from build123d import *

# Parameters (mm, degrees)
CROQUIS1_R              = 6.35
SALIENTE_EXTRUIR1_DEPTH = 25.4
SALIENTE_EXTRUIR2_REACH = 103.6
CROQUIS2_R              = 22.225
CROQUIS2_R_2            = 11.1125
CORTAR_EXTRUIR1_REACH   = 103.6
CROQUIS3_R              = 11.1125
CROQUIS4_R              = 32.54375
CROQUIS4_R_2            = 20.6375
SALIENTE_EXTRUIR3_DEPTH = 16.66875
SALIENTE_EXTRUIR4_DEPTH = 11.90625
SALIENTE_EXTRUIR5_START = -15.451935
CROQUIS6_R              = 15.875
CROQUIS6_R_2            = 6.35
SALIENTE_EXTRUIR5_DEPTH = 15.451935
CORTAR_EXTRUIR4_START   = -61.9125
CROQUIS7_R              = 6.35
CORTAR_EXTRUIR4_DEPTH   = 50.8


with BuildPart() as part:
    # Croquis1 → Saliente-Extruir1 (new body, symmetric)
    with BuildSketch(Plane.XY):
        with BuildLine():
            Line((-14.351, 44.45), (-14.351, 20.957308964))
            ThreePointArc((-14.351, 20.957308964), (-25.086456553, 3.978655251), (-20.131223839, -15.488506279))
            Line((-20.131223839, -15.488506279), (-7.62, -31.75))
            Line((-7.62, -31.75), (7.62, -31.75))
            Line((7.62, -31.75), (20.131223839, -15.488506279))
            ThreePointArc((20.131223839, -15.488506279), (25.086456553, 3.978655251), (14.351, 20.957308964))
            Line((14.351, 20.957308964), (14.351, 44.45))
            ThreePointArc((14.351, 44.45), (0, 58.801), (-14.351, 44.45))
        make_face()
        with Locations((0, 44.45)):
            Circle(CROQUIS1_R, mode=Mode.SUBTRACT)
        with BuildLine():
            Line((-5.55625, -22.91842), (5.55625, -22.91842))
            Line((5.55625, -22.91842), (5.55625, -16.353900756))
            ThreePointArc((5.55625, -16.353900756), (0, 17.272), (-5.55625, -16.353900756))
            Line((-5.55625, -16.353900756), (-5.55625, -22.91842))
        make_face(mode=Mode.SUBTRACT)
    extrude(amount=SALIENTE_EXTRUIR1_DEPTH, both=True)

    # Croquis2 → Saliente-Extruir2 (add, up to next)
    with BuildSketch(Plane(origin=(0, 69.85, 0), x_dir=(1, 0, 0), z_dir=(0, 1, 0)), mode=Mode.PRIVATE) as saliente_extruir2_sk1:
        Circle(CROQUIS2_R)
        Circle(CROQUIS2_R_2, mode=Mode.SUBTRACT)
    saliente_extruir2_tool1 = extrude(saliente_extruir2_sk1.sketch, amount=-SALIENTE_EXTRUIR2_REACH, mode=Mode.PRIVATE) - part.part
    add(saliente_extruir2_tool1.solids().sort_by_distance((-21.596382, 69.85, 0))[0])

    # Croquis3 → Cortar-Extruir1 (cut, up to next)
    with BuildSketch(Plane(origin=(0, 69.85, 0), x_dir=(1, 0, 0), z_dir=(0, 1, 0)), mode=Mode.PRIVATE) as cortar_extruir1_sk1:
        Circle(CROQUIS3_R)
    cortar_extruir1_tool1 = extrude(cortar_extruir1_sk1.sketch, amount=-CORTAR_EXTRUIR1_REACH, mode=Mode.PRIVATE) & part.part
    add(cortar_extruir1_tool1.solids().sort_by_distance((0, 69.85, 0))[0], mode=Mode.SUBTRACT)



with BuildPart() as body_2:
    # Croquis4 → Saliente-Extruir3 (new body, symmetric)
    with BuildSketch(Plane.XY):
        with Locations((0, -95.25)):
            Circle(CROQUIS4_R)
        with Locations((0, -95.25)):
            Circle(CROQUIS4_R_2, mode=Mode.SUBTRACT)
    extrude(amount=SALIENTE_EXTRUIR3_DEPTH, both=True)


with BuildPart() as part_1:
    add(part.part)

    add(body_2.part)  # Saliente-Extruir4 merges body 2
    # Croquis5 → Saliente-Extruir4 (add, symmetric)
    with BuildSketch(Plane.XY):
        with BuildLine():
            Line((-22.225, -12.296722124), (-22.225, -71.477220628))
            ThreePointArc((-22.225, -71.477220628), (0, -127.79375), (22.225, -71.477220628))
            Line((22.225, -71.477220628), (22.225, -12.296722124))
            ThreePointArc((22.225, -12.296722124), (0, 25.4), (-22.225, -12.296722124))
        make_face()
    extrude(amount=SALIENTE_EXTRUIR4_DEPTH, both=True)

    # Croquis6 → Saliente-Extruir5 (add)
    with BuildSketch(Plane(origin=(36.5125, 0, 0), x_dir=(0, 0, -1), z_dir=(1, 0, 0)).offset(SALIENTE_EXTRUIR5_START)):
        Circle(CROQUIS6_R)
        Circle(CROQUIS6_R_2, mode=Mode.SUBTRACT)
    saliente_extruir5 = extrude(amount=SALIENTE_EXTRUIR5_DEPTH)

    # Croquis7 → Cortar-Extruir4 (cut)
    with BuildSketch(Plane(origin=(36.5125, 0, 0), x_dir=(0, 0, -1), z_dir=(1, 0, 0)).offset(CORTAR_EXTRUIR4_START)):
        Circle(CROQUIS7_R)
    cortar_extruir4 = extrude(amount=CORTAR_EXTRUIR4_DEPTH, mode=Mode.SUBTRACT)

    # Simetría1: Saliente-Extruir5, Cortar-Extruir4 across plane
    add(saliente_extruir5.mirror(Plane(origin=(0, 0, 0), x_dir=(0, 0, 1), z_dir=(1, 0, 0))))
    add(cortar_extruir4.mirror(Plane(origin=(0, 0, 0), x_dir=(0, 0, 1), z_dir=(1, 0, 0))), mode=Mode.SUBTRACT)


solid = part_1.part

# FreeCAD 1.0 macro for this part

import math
import FreeCAD as App
import Part
import Sketcher

V = App.Vector
Q = App.Units.Quantity

doc = App.newDocument("Part")
body = doc.addObject("PartDesign::Body", "Body")

# Sketch on XY plane
sketch1 = body.newObject("Sketcher::SketchObject", "Sketch")
sketch1.AttachmentSupport = (doc.getObject("XY_Plane"), [""])
sketch1.MapMode = "FlatFace"
sketch1.addGeometry([
    Part.LineSegment(V(-14, 44, 0), V(-14, 21, 0)),  # 0
    Part.ArcOfCircle(Part.Circle(V(0, 0, 0), V(0, 0, 1), 25), math.radians(124), math.radians(218)),  # 1
    Part.LineSegment(V(-20, -15, 0), V(-8, -32, 0)),  # 2
    Part.LineSegment(V(-8, -32, 0), V(8, -32, 0)),  # 3
    Part.LineSegment(V(8, -32, 0), V(20, -15, 0)),  # 4
    Part.ArcOfCircle(Part.Circle(V(0, 0, 0), V(0, 0, 1), 25), math.radians(-38), math.radians(56)),  # 5
    Part.LineSegment(V(14, 21, 0), V(14, 44, 0)),  # 6
    Part.ArcOfCircle(Part.Circle(V(0, 44, 0), V(0, 0, 1), 14), math.radians(0), math.radians(180)),  # 7
    Part.LineSegment(V(6, -23, 0), V(-6, -23, 0)),  # 8
    Part.LineSegment(V(-6, -23, 0), V(-6, -16, 0)),  # 9
    Part.ArcOfCircle(Part.Circle(V(0, 0, 0), V(0, 0, 1), 17), math.radians(-71), math.radians(251)),  # 10
    Part.LineSegment(V(6, -16, 0), V(6, -23, 0)),  # 11
    Part.Circle(V(0, 44, 0), V(0, 0, 1), 6),  # 12
], False)
sketch1.addConstraint([
    Sketcher.Constraint("Coincident", 0, 2, 1, 1),
    Sketcher.Constraint("Tangent", 1, 2, 2, 1),
    Sketcher.Constraint("Coincident", 2, 2, 3, 1),
    Sketcher.Constraint("Coincident", 3, 2, 4, 1),
    Sketcher.Constraint("Tangent", 4, 2, 5, 1),
    Sketcher.Constraint("Coincident", 5, 2, 6, 1),
    Sketcher.Constraint("Tangent", 6, 2, 7, 1),
    Sketcher.Constraint("Tangent", 7, 2, 0, 1),
    Sketcher.Constraint("Coincident", 8, 2, 9, 1),
    Sketcher.Constraint("Coincident", 9, 2, 10, 2),
    Sketcher.Constraint("Coincident", 10, 1, 11, 1),
    Sketcher.Constraint("Coincident", 11, 2, 8, 1),
    Sketcher.Constraint("Vertical", 0),
    Sketcher.Constraint("Horizontal", 3),
    Sketcher.Constraint("Vertical", 6),
    Sketcher.Constraint("Horizontal", 8),
    Sketcher.Constraint("Vertical", 9),
    Sketcher.Constraint("Vertical", 11),
    Sketcher.Constraint("Coincident", 1, 3, -1, 1),
    Sketcher.Constraint("Coincident", 5, 3, -1, 1),
    Sketcher.Constraint("Coincident", 10, 3, -1, 1),
    Sketcher.Constraint("Coincident", 12, 3, 7, 3),
    Sketcher.Constraint("Equal", 1, 5),
    Sketcher.Constraint("PointOnObject", 7, 3, -2),
    Sketcher.Constraint("Horizontal", 1, 2, 4, 2),
    Sketcher.Constraint("Horizontal", 9, 2, 10, 1),
    Sketcher.Constraint("Radius", 1, Q("1 in")),
    Sketcher.Constraint("Diameter", 12, Q("0.5 in")),
    Sketcher.Constraint("Radius", 10, Q("0.68 in")),
    Sketcher.Constraint("DistanceX", 3, 1, 3, 2, Q("0.6 in")),
    Sketcher.Constraint("Radius", 7, Q("0.565 in")),
    Sketcher.Constraint("DistanceX", 8, 2, 8, 1, Q("0.4375 in")),
    Sketcher.Constraint("DistanceY", -1, 1, 7, 3, Q("1.75 in")),
    Sketcher.Constraint("DistanceY", 2, 2, -1, 1, Q("1.25 in")),
    Sketcher.Constraint("DistanceY", 8, 2, -1, 1, Q("0.9023 in")),
])
pad1 = body.newObject("PartDesign::Pad", "Pad")
pad1.Profile = sketch1
pad1.Length = Q("2 in")
pad1.Midplane = True

# Sketch on XZ plane
sketch2 = body.newObject("Sketcher::SketchObject", "Sketch001")
sketch2.AttachmentSupport = (doc.getObject("XZ_Plane"), [""])
sketch2.MapMode = "FlatFace"
sketch2.AttachmentOffset = App.Placement(V(0, 0, -2.75 * 25.4), App.Rotation())
sketch2.addGeometry([
    Part.Circle(V(0, 0, 0), V(0, 0, 1), 22),
    Part.Circle(V(0, 0, 0), V(0, 0, 1), 11),
], False)
sketch2.addConstraint([
    Sketcher.Constraint("Coincident", 0, 3, -1, 1),
    Sketcher.Constraint("Coincident", 1, 3, -1, 1),
    Sketcher.Constraint("Diameter", 0, Q("1.75 in")),
    Sketcher.Constraint("Diameter", 1, Q("0.875 in")),
])
pad2 = body.newObject("PartDesign::Pad", "Pad001")
pad2.Profile = sketch2
pad2.Type = "UpToFirst"

# Sketch on XZ plane
sketch3 = body.newObject("Sketcher::SketchObject", "Sketch002")
sketch3.AttachmentSupport = (doc.getObject("XZ_Plane"), [""])
sketch3.MapMode = "FlatFace"
sketch3.AttachmentOffset = App.Placement(V(0, 0, -2.75 * 25.4), App.Rotation())
sketch3.addGeometry(Part.Circle(V(0, 0, 0), V(0, 0, 1), 11), False)
sketch3.addConstraint([
    Sketcher.Constraint("Coincident", 0, 3, -1, 1),
    Sketcher.Constraint("Diameter", 0, Q("0.875 in")),
])
pocket1 = body.newObject("PartDesign::Pocket", "Pocket")
pocket1.Profile = sketch3
pocket1.Length = 56.627507
pocket1.Reversed = True
body2 = doc.addObject("PartDesign::Body", "Body001")

# Sketch on XY plane
sketch4 = body2.newObject("Sketcher::SketchObject", "Sketch003")
sketch4.AttachmentSupport = (doc.getObject("XY_Plane001"), [""])
sketch4.MapMode = "FlatFace"
sketch4.addGeometry([
    Part.Circle(V(0, -95, 0), V(0, 0, 1), 33),
    Part.Circle(V(0, -95, 0), V(0, 0, 1), 21),
], False)
sketch4.addConstraint([
    Sketcher.Constraint("Coincident", 1, 3, 0, 3),
    Sketcher.Constraint("PointOnObject", 0, 3, -2),
    Sketcher.Constraint("Diameter", 0, Q("2.5625 in")),
    Sketcher.Constraint("Diameter", 1, Q("1.625 in")),
    Sketcher.Constraint("DistanceY", 0, 3, -1, 1, Q("3.75 in")),
])
pad3 = body2.newObject("PartDesign::Pad", "Pad002")
pad3.Profile = sketch4
pad3.Length = Q("1.3125 in")
pad3.Midplane = True
body.AllowCompound = True
doc.recompute()

boolean = body.newObject("PartDesign::Boolean", "Boolean")
boolean.Type = "Fuse"
boolean.addObjects([body2])

# Sketch on XY plane
sketch5 = body.newObject("Sketcher::SketchObject", "Sketch004")
sketch5.AttachmentSupport = (doc.getObject("XY_Plane"), [""])
sketch5.MapMode = "FlatFace"
sketch5.addGeometry([
    Part.LineSegment(V(-22, -12, 0), V(-22, -71, 0)),
    Part.ArcOfCircle(Part.Circle(V(0, -95, 0), V(0, 0, 1), 33), math.radians(133), math.radians(407)),
    Part.LineSegment(V(22, -71, 0), V(22, -12, 0)),
    Part.ArcOfCircle(Part.Circle(V(0, 0, 0), V(0, 0, 1), 25), math.radians(-29), math.radians(209)),
], False)
sketch5.addConstraint([
    Sketcher.Constraint("Coincident", 0, 2, 1, 1),
    Sketcher.Constraint("Coincident", 1, 2, 2, 1),
    Sketcher.Constraint("Coincident", 2, 2, 3, 1),
    Sketcher.Constraint("Coincident", 3, 2, 0, 1),
    Sketcher.Constraint("Vertical", 0),
    Sketcher.Constraint("Vertical", 2),
    Sketcher.Constraint("Coincident", 3, 3, -1, 1),
    Sketcher.Constraint("Symmetric", 0, 2, 1, 2, -2),
    Sketcher.Constraint("Radius", 3, Q("1 in")),
    Sketcher.Constraint("Radius", 1, Q("1.28125 in")),
    Sketcher.Constraint("DistanceY", 1, 3, -1, 1, Q("3.75 in")),
    Sketcher.Constraint("DistanceX", 0, 2, 1, 2, Q("1.75 in")),
])
pad4 = body.newObject("PartDesign::Pad", "Pad003")
pad4.Profile = sketch5
pad4.Length = Q("0.9375 in")
pad4.Midplane = True

# Sketch on YZ plane
sketch6 = body.newObject("Sketcher::SketchObject", "Sketch005")
sketch6.AttachmentSupport = (doc.getObject("YZ_Plane"), [""])
sketch6.MapMode = "FlatFace"
sketch6.AttachmentOffset = App.Placement(V(0, 0, 21.060565), App.Rotation())
sketch6.addGeometry([
    Part.Circle(V(0, 0, 0), V(0, 0, 1), 16),
    Part.Circle(V(0, 0, 0), V(0, 0, 1), 6),
], False)
sketch6.addConstraint([
    Sketcher.Constraint("Coincident", 0, 3, -1, 1),
    Sketcher.Constraint("Coincident", 1, 3, -1, 1),
    Sketcher.Constraint("Diameter", 1, Q("0.5 in")),
    Sketcher.Constraint("Diameter", 0, Q("1.25 in")),
])
pad5 = body.newObject("PartDesign::Pad", "Pad004")
pad5.Profile = sketch6
pad5.Length = 15.451935

# Sketch on YZ plane
sketch7 = body.newObject("Sketcher::SketchObject", "Sketch006")
sketch7.AttachmentSupport = (doc.getObject("YZ_Plane"), [""])
sketch7.MapMode = "FlatFace"
sketch7.AttachmentOffset = App.Placement(V(0, 0, -1 * 25.4), App.Rotation())
sketch7.addGeometry(Part.Circle(V(0, 0, 0), V(0, 0, 1), 6), False)
sketch7.addConstraint([
    Sketcher.Constraint("Coincident", 0, 3, -1, 1),
    Sketcher.Constraint("Diameter", 0, Q("0.5 in")),
])
pocket2 = body.newObject("PartDesign::Pocket", "Pocket001")
pocket2.Profile = sketch7
pocket2.Length = Q("2 in")
pocket2.Reversed = True
doc.recompute()

mirrored = body.newObject("PartDesign::Mirrored", "Mirrored")
mirrored.Originals = [pad5, pocket2]
mirrored.MirrorPlane = (doc.getObject("YZ_Plane"), [""])
body.Tip = mirrored

doc.recompute()
